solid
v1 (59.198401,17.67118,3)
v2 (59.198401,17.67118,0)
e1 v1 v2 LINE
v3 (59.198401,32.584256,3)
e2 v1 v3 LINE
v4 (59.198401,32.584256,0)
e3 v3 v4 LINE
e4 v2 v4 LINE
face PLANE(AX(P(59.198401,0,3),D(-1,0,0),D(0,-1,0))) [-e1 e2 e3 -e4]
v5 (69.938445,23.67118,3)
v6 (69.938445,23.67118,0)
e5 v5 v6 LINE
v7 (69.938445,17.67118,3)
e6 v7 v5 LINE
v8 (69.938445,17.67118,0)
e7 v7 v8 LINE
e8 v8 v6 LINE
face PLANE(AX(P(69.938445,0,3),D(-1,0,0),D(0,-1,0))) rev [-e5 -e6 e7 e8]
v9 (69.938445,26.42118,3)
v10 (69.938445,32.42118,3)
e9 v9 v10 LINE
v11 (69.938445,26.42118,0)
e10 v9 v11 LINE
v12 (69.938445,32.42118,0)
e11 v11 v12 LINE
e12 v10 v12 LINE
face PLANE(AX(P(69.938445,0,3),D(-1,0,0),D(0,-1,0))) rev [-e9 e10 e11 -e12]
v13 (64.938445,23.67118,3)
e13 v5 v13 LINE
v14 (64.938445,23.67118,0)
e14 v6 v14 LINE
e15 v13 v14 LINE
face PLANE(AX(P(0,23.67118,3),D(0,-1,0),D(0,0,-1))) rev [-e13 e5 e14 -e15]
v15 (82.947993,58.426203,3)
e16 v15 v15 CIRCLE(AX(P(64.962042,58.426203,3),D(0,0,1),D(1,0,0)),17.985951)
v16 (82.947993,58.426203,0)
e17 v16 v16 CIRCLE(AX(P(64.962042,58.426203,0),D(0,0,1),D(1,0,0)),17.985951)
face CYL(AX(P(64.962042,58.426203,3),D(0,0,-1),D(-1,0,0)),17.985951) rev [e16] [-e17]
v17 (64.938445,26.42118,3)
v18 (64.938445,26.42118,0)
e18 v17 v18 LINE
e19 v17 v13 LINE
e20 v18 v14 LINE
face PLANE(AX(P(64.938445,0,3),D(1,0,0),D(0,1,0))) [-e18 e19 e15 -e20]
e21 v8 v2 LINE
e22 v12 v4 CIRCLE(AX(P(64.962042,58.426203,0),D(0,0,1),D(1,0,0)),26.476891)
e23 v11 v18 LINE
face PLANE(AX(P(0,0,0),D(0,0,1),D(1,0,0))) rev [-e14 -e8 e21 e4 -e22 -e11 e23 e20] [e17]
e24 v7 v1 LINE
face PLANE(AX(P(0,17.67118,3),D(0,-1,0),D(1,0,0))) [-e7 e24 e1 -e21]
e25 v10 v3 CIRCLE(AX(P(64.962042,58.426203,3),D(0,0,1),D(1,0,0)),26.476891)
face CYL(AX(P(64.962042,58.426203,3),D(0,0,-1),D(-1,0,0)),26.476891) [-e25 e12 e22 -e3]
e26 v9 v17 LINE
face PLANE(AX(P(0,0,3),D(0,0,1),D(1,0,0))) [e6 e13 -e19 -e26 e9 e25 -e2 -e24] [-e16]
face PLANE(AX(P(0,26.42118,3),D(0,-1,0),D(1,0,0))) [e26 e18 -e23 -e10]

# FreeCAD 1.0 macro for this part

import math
import FreeCAD as App
import Part
import Sketcher
Q = App.Units.Quantity

doc = App.newDocument("Part")
body = doc.addObject("PartDesign::Body", "Body")

# Sketch on XY plane
sketch1 = doc.addObject("Sketcher::SketchObject", "Sketch")
body.addObject(sketch1)
sketch1.AttachmentSupport = (doc.XY_Plane, [""])
sketch1.MapMode = "FlatFace"
sketch1.addGeometry([
    Part.LineSegment(App.Vector(59.2, 17.7, 0), App.Vector(69.9, 17.7, 0)),  # 0
    Part.LineSegment(App.Vector(69.9, 17.7, 0), App.Vector(69.9, 23.7, 0)),  # 1
    Part.LineSegment(App.Vector(69.9, 23.7, 0), App.Vector(64.9, 23.7, 0)),  # 2
    Part.LineSegment(App.Vector(64.9, 23.7, 0), App.Vector(64.9, 26.4, 0)),  # 3
    Part.LineSegment(App.Vector(64.9, 26.4, 0), App.Vector(69.9, 26.4, 0)),  # 4
    Part.LineSegment(App.Vector(69.9, 26.4, 0), App.Vector(69.9, 32.4, 0)),  # 5
    Part.ArcOfCircle(Part.Circle(App.Vector(65, 58.4, 0), App.Vector(0, 0, 1), 26.5), math.radians(-79), math.radians(257)),  # 6
    Part.LineSegment(App.Vector(59.2, 32.6, 0), App.Vector(59.2, 17.7, 0)),  # 7
    Part.Circle(App.Vector(65, 58.4, 0), App.Vector(0, 0, 1), 18),  # 8
], False)
sketch1.addConstraint([
    Sketcher.Constraint("Coincident", 0, 2, 1, 1),
    Sketcher.Constraint("Coincident", 1, 2, 2, 1),
    Sketcher.Constraint("Coincident", 2, 2, 3, 1),
    Sketcher.Constraint("Coincident", 3, 2, 4, 1),
    Sketcher.Constraint("Coincident", 4, 2, 5, 1),
    Sketcher.Constraint("Coincident", 5, 2, 6, 1),
    Sketcher.Constraint("Coincident", 6, 2, 7, 1),
    Sketcher.Constraint("Coincident", 7, 2, 0, 1),
    Sketcher.Constraint("Horizontal", 0),
    Sketcher.Constraint("Vertical", 1),
    Sketcher.Constraint("Horizontal", 2),
    Sketcher.Constraint("Vertical", 3),
    Sketcher.Constraint("Horizontal", 4),
    Sketcher.Constraint("Vertical", 5),
    Sketcher.Constraint("Vertical", 7),
    Sketcher.Constraint("Coincident", 8, 3, 6, 3),
    Sketcher.Constraint("Vertical", 1, 2, 4, 2),
    Sketcher.Constraint("Equal", 1, 5),
    Sketcher.Constraint("DistanceX", 2, 2, 2, 1, Q("5 mm")),
    Sketcher.Constraint("DistanceY", 1, 1, 1, 2, Q("6 mm")),
    Sketcher.Constraint("DistanceY", 3, 1, 3, 2, Q("2.75 mm")),
    Sketcher.Constraint("Radius", 6, Q("26.476891 mm")),
    Sketcher.Constraint("Diameter", 8, Q("35.971902 mm")),
    Sketcher.Constraint("DistanceX", -1, 1, 6, 2, Q("59.198401 mm")),
    Sketcher.Constraint("DistanceX", 0, 1, 0, 2, Q("10.740044 mm")),
    Sketcher.Constraint("DistanceY", 7, 2, 7, 1, Q("14.913076 mm")),
    Sketcher.Constraint("DistanceY", -1, 1, 0, 2, Q("17.67118 mm")),
])
pad1 = doc.addObject("PartDesign::Pad", "Pad")
body.addObject(pad1)
pad1.Profile = sketch1
pad1.Length = 3

doc.recompute()
